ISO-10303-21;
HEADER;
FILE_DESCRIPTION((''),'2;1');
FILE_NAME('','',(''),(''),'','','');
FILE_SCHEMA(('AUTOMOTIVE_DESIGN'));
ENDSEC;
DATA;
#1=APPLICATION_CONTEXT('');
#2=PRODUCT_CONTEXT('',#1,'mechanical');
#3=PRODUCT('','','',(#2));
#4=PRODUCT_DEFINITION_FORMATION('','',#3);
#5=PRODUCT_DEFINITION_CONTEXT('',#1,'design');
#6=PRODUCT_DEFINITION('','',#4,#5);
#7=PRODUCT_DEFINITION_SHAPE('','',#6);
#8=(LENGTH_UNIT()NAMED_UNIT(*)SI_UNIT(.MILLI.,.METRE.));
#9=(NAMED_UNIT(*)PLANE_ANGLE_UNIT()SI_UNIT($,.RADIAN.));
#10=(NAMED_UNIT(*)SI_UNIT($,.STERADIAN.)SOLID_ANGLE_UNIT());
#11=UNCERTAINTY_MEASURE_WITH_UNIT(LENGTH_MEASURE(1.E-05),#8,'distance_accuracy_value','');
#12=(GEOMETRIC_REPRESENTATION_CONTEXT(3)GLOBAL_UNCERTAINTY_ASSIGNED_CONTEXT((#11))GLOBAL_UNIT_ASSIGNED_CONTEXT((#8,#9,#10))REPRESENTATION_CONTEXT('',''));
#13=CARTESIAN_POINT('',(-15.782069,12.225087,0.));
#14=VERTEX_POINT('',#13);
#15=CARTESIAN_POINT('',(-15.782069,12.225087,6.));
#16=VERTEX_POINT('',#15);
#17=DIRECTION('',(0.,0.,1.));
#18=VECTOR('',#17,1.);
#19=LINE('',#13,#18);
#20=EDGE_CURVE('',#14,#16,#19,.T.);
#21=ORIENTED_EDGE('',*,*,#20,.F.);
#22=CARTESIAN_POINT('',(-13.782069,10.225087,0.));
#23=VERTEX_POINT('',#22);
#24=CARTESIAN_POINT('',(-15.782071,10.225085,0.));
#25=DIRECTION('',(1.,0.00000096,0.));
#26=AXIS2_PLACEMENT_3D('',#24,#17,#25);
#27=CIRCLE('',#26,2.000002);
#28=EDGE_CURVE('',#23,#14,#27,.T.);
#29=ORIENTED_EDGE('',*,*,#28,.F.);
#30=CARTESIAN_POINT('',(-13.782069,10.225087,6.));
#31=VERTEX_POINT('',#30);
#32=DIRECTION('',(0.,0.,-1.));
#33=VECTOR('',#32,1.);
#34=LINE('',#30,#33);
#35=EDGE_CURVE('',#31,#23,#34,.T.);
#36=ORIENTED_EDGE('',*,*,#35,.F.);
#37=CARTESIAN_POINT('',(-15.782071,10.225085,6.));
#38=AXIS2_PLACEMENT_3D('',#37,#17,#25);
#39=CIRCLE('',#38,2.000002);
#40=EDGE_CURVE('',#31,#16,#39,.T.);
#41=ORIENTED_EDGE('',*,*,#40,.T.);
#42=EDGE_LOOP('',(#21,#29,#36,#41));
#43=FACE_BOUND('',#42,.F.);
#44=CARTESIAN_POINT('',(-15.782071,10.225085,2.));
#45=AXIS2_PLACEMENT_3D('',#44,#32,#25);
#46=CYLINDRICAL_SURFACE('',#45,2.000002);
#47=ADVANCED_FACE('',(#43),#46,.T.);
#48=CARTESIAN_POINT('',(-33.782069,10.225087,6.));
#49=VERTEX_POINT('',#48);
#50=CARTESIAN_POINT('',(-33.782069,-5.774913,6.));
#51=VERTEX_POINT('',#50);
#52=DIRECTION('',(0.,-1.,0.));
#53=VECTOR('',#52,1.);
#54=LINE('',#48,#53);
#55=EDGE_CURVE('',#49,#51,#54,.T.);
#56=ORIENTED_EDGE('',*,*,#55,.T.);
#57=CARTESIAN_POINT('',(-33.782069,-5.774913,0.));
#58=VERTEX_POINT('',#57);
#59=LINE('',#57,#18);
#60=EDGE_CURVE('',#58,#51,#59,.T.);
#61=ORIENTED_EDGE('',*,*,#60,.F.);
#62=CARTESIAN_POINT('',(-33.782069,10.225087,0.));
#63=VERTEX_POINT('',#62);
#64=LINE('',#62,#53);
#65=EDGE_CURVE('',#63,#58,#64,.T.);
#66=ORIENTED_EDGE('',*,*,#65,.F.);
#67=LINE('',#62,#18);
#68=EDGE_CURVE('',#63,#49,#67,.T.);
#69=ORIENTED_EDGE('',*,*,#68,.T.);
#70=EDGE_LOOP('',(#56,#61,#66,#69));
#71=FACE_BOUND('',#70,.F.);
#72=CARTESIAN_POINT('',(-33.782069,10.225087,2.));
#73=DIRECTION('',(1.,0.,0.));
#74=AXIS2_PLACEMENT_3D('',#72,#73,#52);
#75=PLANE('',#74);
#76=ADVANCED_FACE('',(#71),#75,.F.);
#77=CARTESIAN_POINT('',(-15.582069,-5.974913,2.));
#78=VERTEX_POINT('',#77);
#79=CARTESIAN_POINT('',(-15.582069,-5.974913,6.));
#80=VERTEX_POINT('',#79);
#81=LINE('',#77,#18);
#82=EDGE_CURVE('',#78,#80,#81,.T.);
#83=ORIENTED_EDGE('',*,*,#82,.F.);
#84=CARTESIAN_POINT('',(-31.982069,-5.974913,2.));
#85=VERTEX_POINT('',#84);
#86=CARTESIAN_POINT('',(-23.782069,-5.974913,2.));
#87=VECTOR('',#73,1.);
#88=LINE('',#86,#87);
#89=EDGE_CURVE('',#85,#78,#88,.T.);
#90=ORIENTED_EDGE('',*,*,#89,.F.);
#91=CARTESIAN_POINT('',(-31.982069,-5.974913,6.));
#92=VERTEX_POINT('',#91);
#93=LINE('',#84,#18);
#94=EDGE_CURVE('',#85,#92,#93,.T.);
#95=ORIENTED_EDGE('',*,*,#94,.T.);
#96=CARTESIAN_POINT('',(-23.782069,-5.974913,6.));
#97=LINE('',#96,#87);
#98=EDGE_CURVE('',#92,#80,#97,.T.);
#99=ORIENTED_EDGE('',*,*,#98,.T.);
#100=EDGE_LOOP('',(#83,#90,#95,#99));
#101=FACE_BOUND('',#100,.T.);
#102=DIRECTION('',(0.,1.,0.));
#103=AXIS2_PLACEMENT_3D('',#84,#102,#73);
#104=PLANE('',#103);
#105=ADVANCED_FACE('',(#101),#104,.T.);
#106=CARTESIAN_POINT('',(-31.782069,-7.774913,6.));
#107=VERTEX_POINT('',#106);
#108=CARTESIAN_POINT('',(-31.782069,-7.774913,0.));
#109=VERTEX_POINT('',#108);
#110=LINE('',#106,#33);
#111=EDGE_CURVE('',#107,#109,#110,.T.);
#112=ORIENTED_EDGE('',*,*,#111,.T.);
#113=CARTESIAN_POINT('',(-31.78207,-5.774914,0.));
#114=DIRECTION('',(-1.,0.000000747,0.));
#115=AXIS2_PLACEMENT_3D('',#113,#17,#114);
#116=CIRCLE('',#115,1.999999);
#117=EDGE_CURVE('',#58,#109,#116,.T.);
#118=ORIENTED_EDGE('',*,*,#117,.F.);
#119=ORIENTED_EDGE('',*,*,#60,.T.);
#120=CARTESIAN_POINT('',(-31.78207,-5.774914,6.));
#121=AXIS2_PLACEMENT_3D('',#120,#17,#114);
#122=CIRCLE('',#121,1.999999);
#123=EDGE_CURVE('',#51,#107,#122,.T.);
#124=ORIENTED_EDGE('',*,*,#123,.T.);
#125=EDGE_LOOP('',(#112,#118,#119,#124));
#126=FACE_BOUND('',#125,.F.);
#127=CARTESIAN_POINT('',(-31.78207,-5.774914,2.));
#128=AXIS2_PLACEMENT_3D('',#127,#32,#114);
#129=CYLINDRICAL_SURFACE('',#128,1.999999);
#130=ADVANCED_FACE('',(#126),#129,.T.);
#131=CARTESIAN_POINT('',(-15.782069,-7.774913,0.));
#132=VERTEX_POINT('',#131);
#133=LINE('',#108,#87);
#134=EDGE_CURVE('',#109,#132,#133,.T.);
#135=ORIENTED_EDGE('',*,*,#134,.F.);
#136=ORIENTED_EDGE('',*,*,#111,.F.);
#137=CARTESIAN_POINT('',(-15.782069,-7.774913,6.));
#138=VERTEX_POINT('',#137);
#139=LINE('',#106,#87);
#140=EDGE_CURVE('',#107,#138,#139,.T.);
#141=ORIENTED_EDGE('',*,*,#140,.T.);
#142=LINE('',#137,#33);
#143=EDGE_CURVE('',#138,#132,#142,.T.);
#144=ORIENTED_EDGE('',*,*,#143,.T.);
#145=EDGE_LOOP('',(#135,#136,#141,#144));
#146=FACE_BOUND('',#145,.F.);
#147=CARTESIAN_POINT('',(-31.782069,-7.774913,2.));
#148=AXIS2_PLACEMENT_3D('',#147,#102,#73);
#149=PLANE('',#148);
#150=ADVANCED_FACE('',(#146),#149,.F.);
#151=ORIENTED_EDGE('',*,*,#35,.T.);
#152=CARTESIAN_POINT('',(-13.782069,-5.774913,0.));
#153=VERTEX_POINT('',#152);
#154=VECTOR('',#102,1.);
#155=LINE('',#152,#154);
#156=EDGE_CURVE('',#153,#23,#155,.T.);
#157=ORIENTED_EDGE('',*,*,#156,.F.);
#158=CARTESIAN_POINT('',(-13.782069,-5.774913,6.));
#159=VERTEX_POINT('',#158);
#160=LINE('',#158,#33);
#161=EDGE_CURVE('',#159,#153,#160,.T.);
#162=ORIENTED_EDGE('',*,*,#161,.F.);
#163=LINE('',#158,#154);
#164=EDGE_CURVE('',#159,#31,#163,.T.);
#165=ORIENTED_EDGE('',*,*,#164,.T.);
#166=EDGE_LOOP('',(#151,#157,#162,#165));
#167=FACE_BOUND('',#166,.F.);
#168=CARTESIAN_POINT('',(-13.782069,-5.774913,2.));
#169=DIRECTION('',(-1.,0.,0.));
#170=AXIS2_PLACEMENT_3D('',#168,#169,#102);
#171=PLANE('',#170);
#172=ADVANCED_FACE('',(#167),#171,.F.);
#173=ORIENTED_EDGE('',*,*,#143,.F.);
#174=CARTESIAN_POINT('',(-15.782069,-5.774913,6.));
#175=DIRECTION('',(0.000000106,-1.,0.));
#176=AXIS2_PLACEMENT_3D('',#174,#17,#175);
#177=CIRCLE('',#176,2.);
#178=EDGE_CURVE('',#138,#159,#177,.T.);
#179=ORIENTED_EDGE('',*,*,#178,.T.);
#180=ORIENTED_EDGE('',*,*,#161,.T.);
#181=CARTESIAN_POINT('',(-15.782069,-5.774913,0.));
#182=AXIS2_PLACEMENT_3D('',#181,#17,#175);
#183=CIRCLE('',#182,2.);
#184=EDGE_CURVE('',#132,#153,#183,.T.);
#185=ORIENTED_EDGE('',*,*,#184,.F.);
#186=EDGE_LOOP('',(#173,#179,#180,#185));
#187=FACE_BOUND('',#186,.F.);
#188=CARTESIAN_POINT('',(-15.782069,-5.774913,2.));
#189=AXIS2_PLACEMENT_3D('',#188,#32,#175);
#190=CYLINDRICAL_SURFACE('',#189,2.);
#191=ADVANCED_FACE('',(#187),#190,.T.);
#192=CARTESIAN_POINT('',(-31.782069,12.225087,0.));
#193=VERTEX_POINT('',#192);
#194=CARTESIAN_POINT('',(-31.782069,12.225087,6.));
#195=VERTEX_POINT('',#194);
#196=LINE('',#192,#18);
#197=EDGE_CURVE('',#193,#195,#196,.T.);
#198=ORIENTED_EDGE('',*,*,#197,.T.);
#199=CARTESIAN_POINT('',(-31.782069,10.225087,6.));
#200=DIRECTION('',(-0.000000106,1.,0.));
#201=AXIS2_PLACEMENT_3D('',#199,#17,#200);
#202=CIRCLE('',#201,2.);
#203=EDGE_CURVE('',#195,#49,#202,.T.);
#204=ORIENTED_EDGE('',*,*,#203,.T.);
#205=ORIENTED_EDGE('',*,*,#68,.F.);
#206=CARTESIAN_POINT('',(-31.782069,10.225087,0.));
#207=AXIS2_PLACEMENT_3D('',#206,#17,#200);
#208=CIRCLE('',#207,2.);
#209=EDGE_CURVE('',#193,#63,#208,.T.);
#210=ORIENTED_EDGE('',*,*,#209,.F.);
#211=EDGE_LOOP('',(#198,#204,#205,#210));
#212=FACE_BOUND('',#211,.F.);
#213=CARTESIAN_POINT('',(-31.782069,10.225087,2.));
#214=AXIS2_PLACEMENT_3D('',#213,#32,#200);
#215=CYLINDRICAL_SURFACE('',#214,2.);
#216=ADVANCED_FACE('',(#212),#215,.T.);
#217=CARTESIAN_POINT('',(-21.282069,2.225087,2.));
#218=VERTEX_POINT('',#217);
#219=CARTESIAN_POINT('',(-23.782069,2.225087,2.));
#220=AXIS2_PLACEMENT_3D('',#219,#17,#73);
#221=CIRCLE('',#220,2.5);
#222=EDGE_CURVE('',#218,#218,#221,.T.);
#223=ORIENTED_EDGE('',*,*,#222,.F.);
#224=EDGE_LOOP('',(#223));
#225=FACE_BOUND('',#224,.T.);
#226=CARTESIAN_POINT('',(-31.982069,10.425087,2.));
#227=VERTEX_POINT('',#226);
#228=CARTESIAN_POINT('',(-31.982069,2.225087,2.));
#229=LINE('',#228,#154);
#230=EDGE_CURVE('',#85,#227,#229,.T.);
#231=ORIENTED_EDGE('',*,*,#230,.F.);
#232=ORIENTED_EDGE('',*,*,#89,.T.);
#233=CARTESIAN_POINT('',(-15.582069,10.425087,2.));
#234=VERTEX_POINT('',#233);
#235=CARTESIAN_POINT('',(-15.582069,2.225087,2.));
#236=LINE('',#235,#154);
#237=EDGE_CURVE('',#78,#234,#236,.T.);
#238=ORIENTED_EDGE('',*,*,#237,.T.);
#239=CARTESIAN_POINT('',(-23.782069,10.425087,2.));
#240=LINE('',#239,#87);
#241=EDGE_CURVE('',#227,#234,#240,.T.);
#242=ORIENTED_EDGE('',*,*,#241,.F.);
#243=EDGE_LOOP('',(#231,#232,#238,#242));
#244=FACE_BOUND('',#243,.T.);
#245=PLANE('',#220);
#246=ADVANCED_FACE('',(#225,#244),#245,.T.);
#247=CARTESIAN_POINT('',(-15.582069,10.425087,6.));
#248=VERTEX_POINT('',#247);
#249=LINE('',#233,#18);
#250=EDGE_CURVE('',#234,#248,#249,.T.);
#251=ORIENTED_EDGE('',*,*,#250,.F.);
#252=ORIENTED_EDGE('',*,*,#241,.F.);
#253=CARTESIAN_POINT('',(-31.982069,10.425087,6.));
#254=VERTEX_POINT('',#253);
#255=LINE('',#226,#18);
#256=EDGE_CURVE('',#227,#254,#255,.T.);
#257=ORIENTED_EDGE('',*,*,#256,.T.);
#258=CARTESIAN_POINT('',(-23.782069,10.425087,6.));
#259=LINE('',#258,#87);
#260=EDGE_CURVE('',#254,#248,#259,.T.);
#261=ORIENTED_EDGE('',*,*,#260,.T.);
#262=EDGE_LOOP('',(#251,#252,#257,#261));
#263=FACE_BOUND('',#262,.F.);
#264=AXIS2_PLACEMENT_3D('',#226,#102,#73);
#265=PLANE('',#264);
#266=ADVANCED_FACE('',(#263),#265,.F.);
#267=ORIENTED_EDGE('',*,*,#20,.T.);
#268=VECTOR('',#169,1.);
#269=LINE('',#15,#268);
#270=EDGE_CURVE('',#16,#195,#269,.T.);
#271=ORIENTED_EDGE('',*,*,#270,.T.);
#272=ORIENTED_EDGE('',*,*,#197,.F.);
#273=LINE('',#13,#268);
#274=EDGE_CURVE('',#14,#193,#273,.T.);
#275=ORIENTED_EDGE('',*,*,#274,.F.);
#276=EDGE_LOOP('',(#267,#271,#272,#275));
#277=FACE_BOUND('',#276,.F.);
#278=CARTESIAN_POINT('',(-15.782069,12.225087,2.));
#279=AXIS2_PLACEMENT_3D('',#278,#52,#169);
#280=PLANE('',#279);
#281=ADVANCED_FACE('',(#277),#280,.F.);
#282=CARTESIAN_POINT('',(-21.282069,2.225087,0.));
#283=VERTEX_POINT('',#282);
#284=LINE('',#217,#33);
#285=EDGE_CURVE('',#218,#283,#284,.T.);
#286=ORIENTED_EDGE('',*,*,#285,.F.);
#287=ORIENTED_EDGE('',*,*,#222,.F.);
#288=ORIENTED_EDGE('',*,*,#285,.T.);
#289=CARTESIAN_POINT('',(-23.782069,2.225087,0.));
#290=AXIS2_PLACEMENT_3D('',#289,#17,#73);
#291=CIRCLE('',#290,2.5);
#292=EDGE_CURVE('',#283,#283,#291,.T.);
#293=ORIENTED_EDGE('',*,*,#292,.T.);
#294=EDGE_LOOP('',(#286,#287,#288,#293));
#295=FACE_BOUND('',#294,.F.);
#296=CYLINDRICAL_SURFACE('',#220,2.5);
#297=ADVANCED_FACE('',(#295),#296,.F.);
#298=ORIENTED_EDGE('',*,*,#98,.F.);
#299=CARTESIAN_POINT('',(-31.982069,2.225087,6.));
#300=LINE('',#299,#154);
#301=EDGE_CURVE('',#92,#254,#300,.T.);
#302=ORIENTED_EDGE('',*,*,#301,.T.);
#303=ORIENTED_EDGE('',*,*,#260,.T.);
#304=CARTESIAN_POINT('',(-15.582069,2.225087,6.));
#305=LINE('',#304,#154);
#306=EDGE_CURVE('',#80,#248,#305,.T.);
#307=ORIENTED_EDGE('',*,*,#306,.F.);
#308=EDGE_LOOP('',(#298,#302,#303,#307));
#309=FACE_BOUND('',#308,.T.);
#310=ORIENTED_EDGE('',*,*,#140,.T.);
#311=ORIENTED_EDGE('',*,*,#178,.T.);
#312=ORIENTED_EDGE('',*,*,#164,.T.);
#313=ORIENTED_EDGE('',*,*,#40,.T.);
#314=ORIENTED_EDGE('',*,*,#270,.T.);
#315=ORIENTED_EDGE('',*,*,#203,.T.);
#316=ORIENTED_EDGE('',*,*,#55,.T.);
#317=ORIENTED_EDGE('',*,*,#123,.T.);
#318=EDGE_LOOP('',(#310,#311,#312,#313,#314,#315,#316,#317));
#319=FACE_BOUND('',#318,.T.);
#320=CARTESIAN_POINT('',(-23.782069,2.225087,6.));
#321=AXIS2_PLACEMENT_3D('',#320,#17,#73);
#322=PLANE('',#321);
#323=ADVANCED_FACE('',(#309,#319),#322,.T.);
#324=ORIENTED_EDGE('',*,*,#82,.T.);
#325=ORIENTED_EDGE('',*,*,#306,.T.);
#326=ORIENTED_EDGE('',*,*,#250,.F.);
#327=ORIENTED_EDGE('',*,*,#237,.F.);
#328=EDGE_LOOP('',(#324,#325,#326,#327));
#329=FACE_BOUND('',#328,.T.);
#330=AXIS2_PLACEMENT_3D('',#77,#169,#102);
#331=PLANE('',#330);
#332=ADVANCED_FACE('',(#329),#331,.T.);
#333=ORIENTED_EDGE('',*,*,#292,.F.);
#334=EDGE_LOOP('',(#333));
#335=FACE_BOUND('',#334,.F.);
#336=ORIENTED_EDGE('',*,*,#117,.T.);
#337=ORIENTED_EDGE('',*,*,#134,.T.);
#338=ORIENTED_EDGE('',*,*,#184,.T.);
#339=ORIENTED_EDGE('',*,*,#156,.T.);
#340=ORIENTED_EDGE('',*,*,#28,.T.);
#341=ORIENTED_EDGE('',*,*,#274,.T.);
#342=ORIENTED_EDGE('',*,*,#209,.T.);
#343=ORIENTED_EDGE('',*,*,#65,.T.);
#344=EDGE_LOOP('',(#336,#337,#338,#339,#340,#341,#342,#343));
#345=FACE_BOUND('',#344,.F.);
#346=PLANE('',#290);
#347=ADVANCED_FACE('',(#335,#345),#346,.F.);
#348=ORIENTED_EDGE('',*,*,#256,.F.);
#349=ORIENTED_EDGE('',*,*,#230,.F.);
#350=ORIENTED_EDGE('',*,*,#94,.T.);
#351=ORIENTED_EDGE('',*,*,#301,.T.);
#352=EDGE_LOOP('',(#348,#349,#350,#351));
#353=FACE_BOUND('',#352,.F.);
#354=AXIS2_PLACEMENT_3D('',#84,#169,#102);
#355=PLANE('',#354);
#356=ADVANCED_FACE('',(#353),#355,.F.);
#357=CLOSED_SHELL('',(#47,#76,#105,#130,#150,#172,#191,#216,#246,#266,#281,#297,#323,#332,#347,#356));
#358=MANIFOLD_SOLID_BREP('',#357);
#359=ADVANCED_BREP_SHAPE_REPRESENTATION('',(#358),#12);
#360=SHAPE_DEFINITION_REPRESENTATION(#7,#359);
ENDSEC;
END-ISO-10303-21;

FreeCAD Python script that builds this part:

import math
import FreeCAD as App
import Part
import Sketcher
from FreeCAD import Vector


def add_polygon(sketch, points):
    """Adds a closed chain of lines whose ends are joined by coincident constraints."""
    first, n = sketch.GeometryCount, len(points)
    for a, b in zip(points, points[1:] + points[:1]):
        sketch.addGeometry(Part.LineSegment(App.Vector(*a, 0), App.Vector(*b, 0)), False)
    for i in range(n):
        sketch.addConstraint(Sketcher.Constraint("Coincident", first + i, 2, first + (i + 1) % n, 1))

doc = App.newDocument("Part")
params = doc.addObject("Spreadsheet::Sheet", "Params")
for row, (alias, value) in enumerate([
    ("sketch1_radius", "2 mm"),
    ("sketch1_width", "16 mm"),
    ("pad1_length", "2 mm"),
    ("sketch2_radius", "2.000002 mm"),
    ("sketch2_width", "16 mm"),
    ("sketch2_width2", "16.4 mm"),
    ("pad2_length", "4 mm"),
    ("sketch3_diameter", "5 mm"),
    ("pocket1_length", "25 mm"),
], start=1):
    params.set(f"A{row}", alias)
    params.set(f"B{row}", "=" + value)
    params.setAlias(f"B{row}", alias)

body = doc.addObject("PartDesign::Body", "Body")

# Sketch on XY plane
sketch1 = body.newObject("Sketcher::SketchObject", "Sketch")
sketch1.AttachmentSupport = (doc.getObject("XY_Plane"), [""])
sketch1.MapMode = "FlatFace"
sketch1.addGeometry([
    Part.LineSegment(Vector(-15.8, 12.2, 0), Vector(-31.8, 12.2, 0)),  # 0
    Part.ArcOfCircle(Part.Circle(Vector(-31.8, 10.2, 0), Vector(0, 0, 1), 2), math.radians(90), math.radians(180)),  # 1
    Part.LineSegment(Vector(-33.8, 10.2, 0), Vector(-33.8, -5.8, 0)),  # 2
    Part.ArcOfCircle(Part.Circle(Vector(-31.8, -5.8, 0), Vector(0, 0, 1), 2), math.radians(180), math.radians(270)),  # 3
    Part.LineSegment(Vector(-31.8, -7.8, 0), Vector(-15.8, -7.8, 0)),  # 4
    Part.ArcOfCircle(Part.Circle(Vector(-15.8, -5.8, 0), Vector(0, 0, 1), 2), math.radians(-90), math.radians(0)),  # 5
    Part.LineSegment(Vector(-13.8, -5.8, 0), Vector(-13.8, 10.2, 0)),  # 6
    Part.ArcOfCircle(Part.Circle(Vector(-15.8, 10.2, 0), Vector(0, 0, 1), 2), math.radians(0), math.radians(90)),  # 7
], False)
sketch1.addConstraint([
    Sketcher.Constraint("Tangent", 0, 2, 1, 1),
    Sketcher.Constraint("Tangent", 1, 2, 2, 1),
    Sketcher.Constraint("Tangent", 2, 2, 3, 1),
    Sketcher.Constraint("Tangent", 3, 2, 4, 1),
    Sketcher.Constraint("Tangent", 4, 2, 5, 1),
    Sketcher.Constraint("Tangent", 5, 2, 6, 1),
    Sketcher.Constraint("Tangent", 6, 2, 7, 1),
    Sketcher.Constraint("Tangent", 7, 2, 0, 1),
    Sketcher.Constraint("Horizontal", 0),
    Sketcher.Constraint("Vertical", 2),
    Sketcher.Constraint("Horizontal", 4),
    Sketcher.Constraint("Vertical", 6),
    Sketcher.Constraint("Equal", 1, 3),
    Sketcher.Constraint("Equal", 3, 5),
    Sketcher.Constraint("Equal", 5, 7),
    Sketcher.Constraint("Equal", 4, 2),
    Sketcher.Constraint("Radius", 1, 2.0),
    Sketcher.Constraint("DistanceX", 0, 2, 0, 1, 16.0),
    Sketcher.Constraint("DistanceX", 1, 3, -1, 1, 31.782069),
    Sketcher.Constraint("DistanceY", -1, 1, 1, 3, 10.225087),
])
sketch1.setExpression("Constraints[16]", "Params.sketch1_radius")
sketch1.setExpression("Constraints[17]", "Params.sketch1_width")
pad1 = body.newObject("PartDesign::Pad", "Pad")
pad1.Profile = sketch1
pad1.setExpression("Length", "Params.pad1_length")

# Sketch on XY plane
sketch2 = body.newObject("Sketcher::SketchObject", "Sketch001")
sketch2.AttachmentSupport = (doc.getObject("XY_Plane"), [""])
sketch2.MapMode = "FlatFace"
sketch2.AttachmentOffset = App.Placement(Vector(0, 0, 2), App.Rotation())
sketch2.addGeometry(Part.ArcOfCircle(Part.Circle(Vector(-15.8, 10.2, 0), Vector(0, 0, 1), 2), math.radians(0), math.radians(90)), False)  # 0
sketch2.addGeometry(Part.LineSegment(Vector(-15.8, 12.2, 0), Vector(-31.8, 12.2, 0)), False)  # 1
sketch2.addGeometry(Part.ArcOfCircle(Part.Circle(Vector(-31.8, 10.2, 0), Vector(0, 0, 1), 2), math.radians(90), math.radians(180)), False)  # 2
sketch2.addGeometry(Part.LineSegment(Vector(-33.8, 10.2, 0), Vector(-33.8, -5.8, 0)), False)  # 3
sketch2.addGeometry(Part.ArcOfCircle(Part.Circle(Vector(-31.8, -5.8, 0), Vector(0, 0, 1), 2), math.radians(180), math.radians(270)), False)  # 4
sketch2.addGeometry(Part.LineSegment(Vector(-31.8, -7.8, 0), Vector(-15.8, -7.8, 0)), False)  # 5
sketch2.addGeometry(Part.ArcOfCircle(Part.Circle(Vector(-15.8, -5.8, 0), Vector(0, 0, 1), 2), math.radians(-90), math.radians(0)), False)  # 6
sketch2.addGeometry(Part.LineSegment(Vector(-13.8, -5.8, 0), Vector(-13.8, 10.2, 0)), False)  # 7
add_polygon(sketch2, [(-15.6, -6), (-32, -6), (-32, 10.4), (-15.6, 10.4)])  # lines 8-11
sketch2.addConstraint([
    Sketcher.Constraint("Tangent", 0, 2, 1, 1),
    Sketcher.Constraint("Tangent", 1, 2, 2, 1),
    Sketcher.Constraint("Tangent", 2, 2, 3, 1),
    Sketcher.Constraint("Tangent", 3, 2, 4, 1),
    Sketcher.Constraint("Tangent", 4, 2, 5, 1),
    Sketcher.Constraint("Tangent", 5, 2, 6, 1),
    Sketcher.Constraint("Tangent", 6, 2, 7, 1),
    Sketcher.Constraint("Tangent", 7, 2, 0, 1),
    Sketcher.Constraint("Horizontal", 1),
    Sketcher.Constraint("Vertical", 3),
    Sketcher.Constraint("Horizontal", 5),
    Sketcher.Constraint("Vertical", 7),
    Sketcher.Constraint("Horizontal", 8),
    Sketcher.Constraint("Vertical", 9),
    Sketcher.Constraint("Horizontal", 10),
    Sketcher.Constraint("Vertical", 11),
    Sketcher.Constraint("Equal", 0, 2),
    Sketcher.Constraint("Equal", 2, 4),
    Sketcher.Constraint("Equal", 4, 6),
    Sketcher.Constraint("Equal", 5, 3),
    Sketcher.Constraint("Equal", 10, 9),
    Sketcher.Constraint("Radius", 0, 2.000002),
    Sketcher.Constraint("DistanceX", 1, 2, 1, 1, 16.0),
    Sketcher.Constraint("DistanceX", 8, 2, 8, 1, 16.4),
    Sketcher.Constraint("DistanceX", 8, 2, 4, 3, 0.199999),
    Sketcher.Constraint("DistanceY", 8, 2, 4, 3, 0.199999),
    Sketcher.Constraint("DistanceX", 0, 3, -1, 1, 15.782071),
    Sketcher.Constraint("DistanceY", -1, 1, 0, 3, 10.225085),
])
sketch2.setExpression("Constraints[25]", "Params.sketch2_radius")
sketch2.setExpression("Constraints[26]", "Params.sketch2_width")
sketch2.setExpression("Constraints[27]", "Params.sketch2_width2")
pad2 = body.newObject("PartDesign::Pad", "Pad001")
pad2.Profile = sketch2
pad2.setExpression("Length", "Params.pad2_length")

# Sketch on XY plane
sketch3 = body.newObject("Sketcher::SketchObject", "Sketch002")
sketch3.AttachmentSupport = (doc.getObject("XY_Plane"), [""])
sketch3.MapMode = "FlatFace"
sketch3.AttachmentOffset = App.Placement(Vector(0, 0, 2), App.Rotation())
sketch3.addGeometry(Part.Circle(Vector(-23.8, 2.2, 0), Vector(0, 0, 1), 2.5), False)
sketch3.addConstraint([
    Sketcher.Constraint("Diameter", 0, 5.0),
    Sketcher.Constraint("DistanceX", 0, 3, -1, 1, 23.782069),
    Sketcher.Constraint("DistanceY", -1, 1, 0, 3, 2.225087),
])
sketch3.setExpression("Constraints[0]", "Params.sketch3_diameter")
pocket1 = body.newObject("PartDesign::Pocket", "Pocket")
pocket1.Profile = sketch3
pocket1.setExpression("Length", "Params.pocket1_length")

doc.recompute()
